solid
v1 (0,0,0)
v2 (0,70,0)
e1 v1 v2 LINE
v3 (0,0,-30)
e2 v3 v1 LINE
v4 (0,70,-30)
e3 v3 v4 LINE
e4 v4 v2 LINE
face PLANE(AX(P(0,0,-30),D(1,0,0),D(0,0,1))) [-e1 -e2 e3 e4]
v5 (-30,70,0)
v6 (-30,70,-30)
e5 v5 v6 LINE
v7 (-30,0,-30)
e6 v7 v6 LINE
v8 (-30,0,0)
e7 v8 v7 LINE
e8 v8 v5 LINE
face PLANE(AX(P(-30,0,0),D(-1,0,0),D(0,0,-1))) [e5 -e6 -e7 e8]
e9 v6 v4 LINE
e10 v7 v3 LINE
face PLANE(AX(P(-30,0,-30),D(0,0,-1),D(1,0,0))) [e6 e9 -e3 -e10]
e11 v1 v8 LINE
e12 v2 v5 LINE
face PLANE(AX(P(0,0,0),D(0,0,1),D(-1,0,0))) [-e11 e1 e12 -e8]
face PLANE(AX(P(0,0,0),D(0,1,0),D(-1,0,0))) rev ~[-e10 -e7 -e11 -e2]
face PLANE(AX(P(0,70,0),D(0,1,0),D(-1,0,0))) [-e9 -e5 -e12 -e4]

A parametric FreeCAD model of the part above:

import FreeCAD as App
import Part
import Sketcher

V = App.Vector

doc = App.newDocument("Part")
params = doc.addObject("Spreadsheet::Sheet", "Params")
for row, (alias, value) in enumerate([
    ("sketch1_width", "30 mm"),
    ("pad1_length", "70 mm"),
], start=1):
    params.set(f"A{row}", alias)
    params.set(f"B{row}", "=" + value)
    params.setAlias(f"B{row}", alias)

body = doc.addObject("PartDesign::Body", "Body")

# Sketch on XZ plane
sketch1 = body.newObject("Sketcher::SketchObject", "Sketch")
sketch1.AttachmentSupport = (doc.getObject("XZ_Plane"), [""])
sketch1.MapMode = "FlatFace"
sketch1.addGeometry([
    Part.LineSegment(V(-30, 0, 0), V(0, 0, 0)),
    Part.LineSegment(V(0, 0, 0), V(0, -30, 0)),
    Part.LineSegment(V(0, -30, 0), V(-30, -30, 0)),
    Part.LineSegment(V(-30, -30, 0), V(-30, 0, 0)),
], False)
sketch1.addConstraint([
    Sketcher.Constraint("Coincident", 0, 2, 1, 1),
    Sketcher.Constraint("Coincident", 1, 2, 2, 1),
    Sketcher.Constraint("Coincident", 2, 2, 3, 1),
    Sketcher.Constraint("Coincident", 3, 2, 0, 1),
    Sketcher.Constraint("Horizontal", 0),
    Sketcher.Constraint("Vertical", 1),
    Sketcher.Constraint("Horizontal", 2),
    Sketcher.Constraint("Vertical", 3),
    Sketcher.Constraint("Coincident", 0, 2, -1, 1),
    Sketcher.Constraint("Equal", 2, 1),
    Sketcher.Constraint("DistanceX", 0, 1, 0, 2, 30.0),
])
sketch1.setExpression("Constraints[10]", "Params.sketch1_width")
pad1 = body.newObject("PartDesign::Pad", "Pad")
pad1.Profile = sketch1
pad1.setExpression("Length", "Params.pad1_length")
pad1.Reversed = True

doc.recompute()
